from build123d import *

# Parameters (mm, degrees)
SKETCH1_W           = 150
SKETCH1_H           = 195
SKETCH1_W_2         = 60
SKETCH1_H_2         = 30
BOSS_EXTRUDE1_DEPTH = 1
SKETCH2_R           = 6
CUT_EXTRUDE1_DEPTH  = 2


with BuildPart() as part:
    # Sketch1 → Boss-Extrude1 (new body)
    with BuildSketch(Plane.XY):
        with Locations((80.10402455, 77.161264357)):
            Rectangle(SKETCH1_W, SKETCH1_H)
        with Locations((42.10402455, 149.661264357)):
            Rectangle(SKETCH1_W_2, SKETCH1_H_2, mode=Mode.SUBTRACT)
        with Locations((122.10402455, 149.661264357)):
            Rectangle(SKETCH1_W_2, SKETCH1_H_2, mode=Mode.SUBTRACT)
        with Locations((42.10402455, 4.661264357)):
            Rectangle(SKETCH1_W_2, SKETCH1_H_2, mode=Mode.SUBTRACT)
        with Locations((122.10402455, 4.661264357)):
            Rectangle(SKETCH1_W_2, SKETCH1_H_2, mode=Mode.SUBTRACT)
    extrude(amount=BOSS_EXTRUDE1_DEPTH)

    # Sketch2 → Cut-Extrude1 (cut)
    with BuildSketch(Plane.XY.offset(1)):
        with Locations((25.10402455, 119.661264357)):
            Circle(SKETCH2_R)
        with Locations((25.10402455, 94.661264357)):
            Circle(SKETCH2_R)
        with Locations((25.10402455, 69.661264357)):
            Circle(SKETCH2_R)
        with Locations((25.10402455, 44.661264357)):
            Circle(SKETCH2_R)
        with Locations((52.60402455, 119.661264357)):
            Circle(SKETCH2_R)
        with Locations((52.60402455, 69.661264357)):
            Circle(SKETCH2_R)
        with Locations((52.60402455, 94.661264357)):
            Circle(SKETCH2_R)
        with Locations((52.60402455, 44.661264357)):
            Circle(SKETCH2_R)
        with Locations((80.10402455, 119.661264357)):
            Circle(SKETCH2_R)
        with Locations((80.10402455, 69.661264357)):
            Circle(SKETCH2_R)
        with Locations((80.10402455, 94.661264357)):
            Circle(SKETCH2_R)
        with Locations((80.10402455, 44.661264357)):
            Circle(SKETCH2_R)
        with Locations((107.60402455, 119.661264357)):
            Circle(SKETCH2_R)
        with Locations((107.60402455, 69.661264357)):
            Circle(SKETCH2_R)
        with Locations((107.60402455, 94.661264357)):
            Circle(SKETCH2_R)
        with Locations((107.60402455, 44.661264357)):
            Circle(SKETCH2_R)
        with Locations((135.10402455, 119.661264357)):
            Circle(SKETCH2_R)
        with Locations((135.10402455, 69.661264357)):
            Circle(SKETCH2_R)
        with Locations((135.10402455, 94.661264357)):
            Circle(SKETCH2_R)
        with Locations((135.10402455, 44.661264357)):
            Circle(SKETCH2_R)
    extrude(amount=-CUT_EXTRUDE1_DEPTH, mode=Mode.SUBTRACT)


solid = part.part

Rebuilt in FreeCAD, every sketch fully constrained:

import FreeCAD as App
import Part
import Sketcher
from FreeCAD import Vector
Q = App.Units.Quantity


def add_polygon(sketch, points):
    """Adds a closed chain of lines whose ends are joined by coincident constraints."""
    first, n = sketch.GeometryCount, len(points)
    for a, b in zip(points, points[1:] + points[:1]):
        sketch.addGeometry(Part.LineSegment(App.Vector(*a, 0), App.Vector(*b, 0)), False)
    for i in range(n):
        sketch.addConstraint(Sketcher.Constraint("Coincident", first + i, 2, first + (i + 1) % n, 1))

doc = App.newDocument("Part")
body = doc.addObject("PartDesign::Body", "Body")

sketch1 = body.newObject("Sketcher::SketchObject", "Sketch")
sketch1.AttachmentSupport = (doc.getObject("XY_Plane"), [""])
sketch1.MapMode = "FlatFace"
add_polygon(sketch1, [(5, 175), (5, -20), (155, -20), (155, 175)])
add_polygon(sketch1, [(72, -10), (12, -10), (12, 20), (72, 20)])
add_polygon(sketch1, [(152, -10), (92, -10), (92, 20), (152, 20)])
add_polygon(sketch1, [(72, 135), (12, 135), (12, 165), (72, 165)])
add_polygon(sketch1, [(152, 135), (92, 135), (92, 165), (152, 165)])
sketch1.addConstraint(Sketcher.Constraint("Vertical", 0))
sketch1.addConstraint(Sketcher.Constraint("Horizontal", 1))
sketch1.addConstraint(Sketcher.Constraint("Vertical", 2))
sketch1.addConstraint(Sketcher.Constraint("Horizontal", 3))
sketch1.addConstraint(Sketcher.Constraint("Horizontal", 4))
sketch1.addConstraint(Sketcher.Constraint("Vertical", 5))
sketch1.addConstraint(Sketcher.Constraint("Horizontal", 6))
sketch1.addConstraint(Sketcher.Constraint("Vertical", 7))
sketch1.addConstraint(Sketcher.Constraint("Horizontal", 8))
sketch1.addConstraint(Sketcher.Constraint("Vertical", 9))
sketch1.addConstraint(Sketcher.Constraint("Horizontal", 10))
sketch1.addConstraint(Sketcher.Constraint("Vertical", 11))
sketch1.addConstraint(Sketcher.Constraint("Horizontal", 12))
sketch1.addConstraint(Sketcher.Constraint("Vertical", 13))
sketch1.addConstraint(Sketcher.Constraint("Horizontal", 14))
sketch1.addConstraint(Sketcher.Constraint("Vertical", 15))
sketch1.addConstraint(Sketcher.Constraint("Horizontal", 16))
sketch1.addConstraint(Sketcher.Constraint("Vertical", 17))
sketch1.addConstraint(Sketcher.Constraint("Horizontal", 18))
sketch1.addConstraint(Sketcher.Constraint("Vertical", 19))
sketch1.addConstraint(Sketcher.Constraint("Horizontal", 7, 2, 8, 2))
sketch1.addConstraint(Sketcher.Constraint("Horizontal", 6, 2, 9, 2))
sketch1.addConstraint(Sketcher.Constraint("Horizontal", 15, 2, 16, 2))
sketch1.addConstraint(Sketcher.Constraint("Horizontal", 14, 2, 17, 2))
sketch1.addConstraint(Sketcher.Constraint("Vertical", 5, 2, 12, 2))
sketch1.addConstraint(Sketcher.Constraint("Vertical", 7, 2, 14, 2))
sketch1.addConstraint(Sketcher.Constraint("Vertical", 9, 2, 16, 2))
sketch1.addConstraint(Sketcher.Constraint("Vertical", 11, 2, 18, 2))
sketch1.addConstraint(Sketcher.Constraint("Equal", 6, 8))
sketch1.addConstraint(Sketcher.Constraint("Equal", 11, 13))
sketch1.addConstraint(Sketcher.Constraint("DistanceX", 1, 1, 1, 2, Q("150 mm")))
sketch1.addConstraint(Sketcher.Constraint("DistanceX", 4, 2, 4, 1, Q("60 mm")))
sketch1.addConstraint(Sketcher.Constraint("DistanceY", 0, 2, 0, 1, Q("195 mm")))
sketch1.addConstraint(Sketcher.Constraint("DistanceY", 5, 1, 5, 2, Q("30 mm")))
sketch1.addConstraint(Sketcher.Constraint("DistanceX", 0, 2, 4, 2, Q("7 mm")))
sketch1.addConstraint(Sketcher.Constraint("DistanceY", 0, 2, 4, 2, Q("10 mm")))
sketch1.addConstraint(Sketcher.Constraint("DistanceX", 7, 2, 8, 2, Q("20 mm")))
sketch1.addConstraint(Sketcher.Constraint("DistanceY", 12, 2, 3, 2, Q("40 mm")))
sketch1.addConstraint(Sketcher.Constraint("DistanceX", -1, 1, 0, 2, Q("5.104025 mm")))
sketch1.addConstraint(Sketcher.Constraint("DistanceY", 0, 2, -1, 1, Q("20.338736 mm")))
pad1 = body.newObject("PartDesign::Pad", "Pad")
pad1.Profile = sketch1
pad1.Length = 1

sketch2 = body.newObject("Sketcher::SketchObject", "Sketch001")
sketch2.AttachmentSupport = (doc.getObject("XY_Plane"), [""])
sketch2.MapMode = "FlatFace"
sketch2.AttachmentOffset = App.Placement(Vector(0, 0, 1), App.Rotation())
sketch2.addGeometry(Part.Circle(Vector(25, 120, 0), Vector(0, 0, 1), 6), False)
sketch2.addGeometry(Part.Circle(Vector(25, 95, 0), Vector(0, 0, 1), 6), False)
sketch2.addGeometry(Part.Circle(Vector(25, 70, 0), Vector(0, 0, 1), 6), False)
sketch2.addGeometry(Part.Circle(Vector(25, 45, 0), Vector(0, 0, 1), 6), False)
sketch2.addGeometry(Part.Circle(Vector(53, 120, 0), Vector(0, 0, 1), 6), False)
sketch2.addGeometry(Part.Circle(Vector(53, 70, 0), Vector(0, 0, 1), 6), False)
sketch2.addGeometry(Part.Circle(Vector(53, 95, 0), Vector(0, 0, 1), 6), False)
sketch2.addGeometry(Part.Circle(Vector(53, 45, 0), Vector(0, 0, 1), 6), False)
sketch2.addGeometry(Part.Circle(Vector(80, 120, 0), Vector(0, 0, 1), 6), False)
sketch2.addGeometry(Part.Circle(Vector(80, 70, 0), Vector(0, 0, 1), 6), False)
sketch2.addGeometry(Part.Circle(Vector(80, 95, 0), Vector(0, 0, 1), 6), False)
sketch2.addGeometry(Part.Circle(Vector(80, 45, 0), Vector(0, 0, 1), 6), False)
sketch2.addGeometry(Part.Circle(Vector(108, 120, 0), Vector(0, 0, 1), 6), False)
sketch2.addGeometry(Part.Circle(Vector(108, 70, 0), Vector(0, 0, 1), 6), False)
sketch2.addGeometry(Part.Circle(Vector(108, 95, 0), Vector(0, 0, 1), 6), False)
sketch2.addGeometry(Part.Circle(Vector(108, 45, 0), Vector(0, 0, 1), 6), False)
sketch2.addGeometry(Part.Circle(Vector(135, 120, 0), Vector(0, 0, 1), 6), False)
sketch2.addGeometry(Part.Circle(Vector(135, 70, 0), Vector(0, 0, 1), 6), False)
sketch2.addGeometry(Part.Circle(Vector(135, 95, 0), Vector(0, 0, 1), 6), False)
sketch2.addGeometry(Part.Circle(Vector(135, 45, 0), Vector(0, 0, 1), 6), False)
sketch2.addConstraint(Sketcher.Constraint("Equal", 0, 1))
sketch2.addConstraint(Sketcher.Constraint("Equal", 1, 2))
sketch2.addConstraint(Sketcher.Constraint("Equal", 2, 3))
sketch2.addConstraint(Sketcher.Constraint("Equal", 3, 4))
sketch2.addConstraint(Sketcher.Constraint("Equal", 4, 5))
sketch2.addConstraint(Sketcher.Constraint("Equal", 5, 6))
sketch2.addConstraint(Sketcher.Constraint("Equal", 6, 7))
sketch2.addConstraint(Sketcher.Constraint("Equal", 7, 8))
sketch2.addConstraint(Sketcher.Constraint("Equal", 8, 9))
sketch2.addConstraint(Sketcher.Constraint("Equal", 9, 10))
sketch2.addConstraint(Sketcher.Constraint("Equal", 10, 11))
sketch2.addConstraint(Sketcher.Constraint("Equal", 11, 12))
sketch2.addConstraint(Sketcher.Constraint("Equal", 12, 13))
sketch2.addConstraint(Sketcher.Constraint("Equal", 13, 14))
sketch2.addConstraint(Sketcher.Constraint("Equal", 14, 15))
sketch2.addConstraint(Sketcher.Constraint("Equal", 15, 16))
sketch2.addConstraint(Sketcher.Constraint("Equal", 16, 17))
sketch2.addConstraint(Sketcher.Constraint("Equal", 17, 18))
sketch2.addConstraint(Sketcher.Constraint("Equal", 18, 19))
sketch2.addConstraint(Sketcher.Constraint("Horizontal", 0, 3, 4, 3))
sketch2.addConstraint(Sketcher.Constraint("Horizontal", 2, 3, 5, 3))
sketch2.addConstraint(Sketcher.Constraint("Horizontal", 1, 3, 6, 3))
sketch2.addConstraint(Sketcher.Constraint("Horizontal", 3, 3, 7, 3))
sketch2.addConstraint(Sketcher.Constraint("Horizontal", 4, 3, 8, 3))
sketch2.addConstraint(Sketcher.Constraint("Horizontal", 5, 3, 9, 3))
sketch2.addConstraint(Sketcher.Constraint("Horizontal", 6, 3, 10, 3))
sketch2.addConstraint(Sketcher.Constraint("Horizontal", 7, 3, 11, 3))
sketch2.addConstraint(Sketcher.Constraint("Horizontal", 8, 3, 12, 3))
sketch2.addConstraint(Sketcher.Constraint("Horizontal", 9, 3, 13, 3))
sketch2.addConstraint(Sketcher.Constraint("Horizontal", 10, 3, 14, 3))
sketch2.addConstraint(Sketcher.Constraint("Horizontal", 11, 3, 15, 3))
sketch2.addConstraint(Sketcher.Constraint("Horizontal", 12, 3, 16, 3))
sketch2.addConstraint(Sketcher.Constraint("Horizontal", 13, 3, 17, 3))
sketch2.addConstraint(Sketcher.Constraint("Horizontal", 14, 3, 18, 3))
sketch2.addConstraint(Sketcher.Constraint("Horizontal", 15, 3, 19, 3))
sketch2.addConstraint(Sketcher.Constraint("Vertical", 0, 3, 1, 3))
sketch2.addConstraint(Sketcher.Constraint("Vertical", 1, 3, 2, 3))
sketch2.addConstraint(Sketcher.Constraint("Vertical", 2, 3, 3, 3))
sketch2.addConstraint(Sketcher.Constraint("Vertical", 4, 3, 5, 3))
sketch2.addConstraint(Sketcher.Constraint("Vertical", 5, 3, 6, 3))
sketch2.addConstraint(Sketcher.Constraint("Vertical", 6, 3, 7, 3))
sketch2.addConstraint(Sketcher.Constraint("Vertical", 8, 3, 9, 3))
sketch2.addConstraint(Sketcher.Constraint("Vertical", 9, 3, 10, 3))
sketch2.addConstraint(Sketcher.Constraint("Vertical", 10, 3, 11, 3))
sketch2.addConstraint(Sketcher.Constraint("Vertical", 12, 3, 13, 3))
sketch2.addConstraint(Sketcher.Constraint("Vertical", 13, 3, 14, 3))
sketch2.addConstraint(Sketcher.Constraint("Vertical", 14, 3, 15, 3))
sketch2.addConstraint(Sketcher.Constraint("Vertical", 16, 3, 17, 3))
sketch2.addConstraint(Sketcher.Constraint("Vertical", 17, 3, 18, 3))
sketch2.addConstraint(Sketcher.Constraint("Vertical", 18, 3, 19, 3))
sketch2.addConstraint(Sketcher.Constraint("Diameter", 0, Q("12 mm")))
sketch2.addConstraint(Sketcher.Constraint("DistanceY", 1, 3, 0, 3, Q("25 mm")))
sketch2.addConstraint(Sketcher.Constraint("DistanceY", 2, 3, 1, 3, Q("25 mm")))
sketch2.addConstraint(Sketcher.Constraint("DistanceY", 3, 3, 2, 3, Q("25 mm")))
sketch2.addConstraint(Sketcher.Constraint("DistanceX", 0, 3, 8, 3, Q("55 mm")))
sketch2.addConstraint(Sketcher.Constraint("DistanceX", 4, 3, 12, 3, Q("55 mm")))
sketch2.addConstraint(Sketcher.Constraint("DistanceX", 8, 3, 16, 3, Q("55 mm")))
sketch2.addConstraint(Sketcher.Constraint("DistanceX", 0, 3, 4, 3, Q("27.5 mm")))
sketch2.addConstraint(Sketcher.Constraint("DistanceX", -1, 1, 0, 3, Q("25.104025 mm")))
sketch2.addConstraint(Sketcher.Constraint("DistanceY", -1, 1, 0, 3, Q("119.661264 mm")))
pocket1 = body.newObject("PartDesign::Pocket", "Pocket")
pocket1.Profile = sketch2
pocket1.Length = 2

doc.recompute()
